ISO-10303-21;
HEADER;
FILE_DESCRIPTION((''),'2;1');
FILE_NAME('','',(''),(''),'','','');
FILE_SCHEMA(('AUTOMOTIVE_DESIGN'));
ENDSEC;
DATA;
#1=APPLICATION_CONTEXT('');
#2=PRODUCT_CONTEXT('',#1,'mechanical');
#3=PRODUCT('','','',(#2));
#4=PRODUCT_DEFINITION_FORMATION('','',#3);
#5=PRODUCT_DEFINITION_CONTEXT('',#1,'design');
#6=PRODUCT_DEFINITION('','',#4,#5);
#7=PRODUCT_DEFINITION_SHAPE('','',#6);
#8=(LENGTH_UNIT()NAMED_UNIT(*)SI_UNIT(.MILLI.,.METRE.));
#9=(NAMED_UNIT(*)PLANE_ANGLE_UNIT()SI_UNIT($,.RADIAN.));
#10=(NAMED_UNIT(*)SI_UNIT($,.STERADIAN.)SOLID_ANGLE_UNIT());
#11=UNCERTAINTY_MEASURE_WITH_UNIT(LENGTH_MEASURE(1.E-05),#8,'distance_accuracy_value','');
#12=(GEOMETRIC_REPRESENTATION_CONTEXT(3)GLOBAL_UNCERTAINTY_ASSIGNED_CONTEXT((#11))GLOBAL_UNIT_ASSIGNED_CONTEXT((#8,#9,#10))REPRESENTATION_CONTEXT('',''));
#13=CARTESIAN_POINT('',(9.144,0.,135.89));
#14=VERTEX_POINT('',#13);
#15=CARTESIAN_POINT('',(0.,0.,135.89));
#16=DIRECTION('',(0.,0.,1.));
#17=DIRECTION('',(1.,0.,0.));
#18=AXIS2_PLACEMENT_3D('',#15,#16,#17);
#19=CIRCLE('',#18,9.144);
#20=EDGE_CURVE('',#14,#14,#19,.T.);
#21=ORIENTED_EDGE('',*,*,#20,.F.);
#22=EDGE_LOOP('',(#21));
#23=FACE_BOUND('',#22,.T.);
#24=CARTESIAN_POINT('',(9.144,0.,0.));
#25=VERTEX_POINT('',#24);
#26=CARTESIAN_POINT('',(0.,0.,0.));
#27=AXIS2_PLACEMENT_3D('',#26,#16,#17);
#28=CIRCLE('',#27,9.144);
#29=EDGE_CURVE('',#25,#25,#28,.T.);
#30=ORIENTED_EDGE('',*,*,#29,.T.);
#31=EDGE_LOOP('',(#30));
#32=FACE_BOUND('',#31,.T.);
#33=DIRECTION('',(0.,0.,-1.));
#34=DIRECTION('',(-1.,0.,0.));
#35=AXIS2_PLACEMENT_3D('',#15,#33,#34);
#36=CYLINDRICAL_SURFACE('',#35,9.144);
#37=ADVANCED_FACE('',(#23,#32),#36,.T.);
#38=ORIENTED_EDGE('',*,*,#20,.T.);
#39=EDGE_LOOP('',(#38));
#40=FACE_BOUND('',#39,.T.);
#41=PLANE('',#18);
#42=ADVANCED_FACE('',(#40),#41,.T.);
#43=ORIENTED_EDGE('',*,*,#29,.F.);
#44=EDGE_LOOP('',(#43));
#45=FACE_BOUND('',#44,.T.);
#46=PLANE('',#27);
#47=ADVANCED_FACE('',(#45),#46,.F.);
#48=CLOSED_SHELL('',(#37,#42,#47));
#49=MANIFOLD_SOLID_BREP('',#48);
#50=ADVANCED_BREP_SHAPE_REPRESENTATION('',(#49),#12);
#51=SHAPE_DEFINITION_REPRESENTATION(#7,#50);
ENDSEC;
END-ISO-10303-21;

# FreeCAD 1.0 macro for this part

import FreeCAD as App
import Part
import Sketcher

V = App.Vector
Q = App.Units.Quantity

doc = App.newDocument("Part")
params = doc.addObject("Spreadsheet::Sheet", "Params")
for row, (alias, value) in enumerate([
    ("sketch1_diameter", "0.72 in"),
    ("pad1_length", "5.35 in"),
], start=1):
    params.set(f"A{row}", alias)
    params.set(f"B{row}", "=" + value)
    params.setAlias(f"B{row}", alias)

body = doc.addObject("PartDesign::Body", "Body")

# Sketch on XY plane
sketch1 = body.newObject("Sketcher::SketchObject", "Sketch")
sketch1.AttachmentSupport = (doc.getObject("XY_Plane"), [""])
sketch1.MapMode = "FlatFace"
sketch1.addGeometry(Part.Circle(V(0, 0, 0), V(0, 0, 1), 9), False)
sketch1.addConstraint([
    Sketcher.Constraint("Coincident", 0, 3, -1, 1),
    Sketcher.Constraint("Diameter", 0, Q("0.72 in")),
])
sketch1.setExpression("Constraints[1]", "Params.sketch1_diameter")
pad1 = body.newObject("PartDesign::Pad", "Pad")
pad1.Profile = sketch1
pad1.setExpression("Length", "Params.pad1_length")

doc.recompute()
